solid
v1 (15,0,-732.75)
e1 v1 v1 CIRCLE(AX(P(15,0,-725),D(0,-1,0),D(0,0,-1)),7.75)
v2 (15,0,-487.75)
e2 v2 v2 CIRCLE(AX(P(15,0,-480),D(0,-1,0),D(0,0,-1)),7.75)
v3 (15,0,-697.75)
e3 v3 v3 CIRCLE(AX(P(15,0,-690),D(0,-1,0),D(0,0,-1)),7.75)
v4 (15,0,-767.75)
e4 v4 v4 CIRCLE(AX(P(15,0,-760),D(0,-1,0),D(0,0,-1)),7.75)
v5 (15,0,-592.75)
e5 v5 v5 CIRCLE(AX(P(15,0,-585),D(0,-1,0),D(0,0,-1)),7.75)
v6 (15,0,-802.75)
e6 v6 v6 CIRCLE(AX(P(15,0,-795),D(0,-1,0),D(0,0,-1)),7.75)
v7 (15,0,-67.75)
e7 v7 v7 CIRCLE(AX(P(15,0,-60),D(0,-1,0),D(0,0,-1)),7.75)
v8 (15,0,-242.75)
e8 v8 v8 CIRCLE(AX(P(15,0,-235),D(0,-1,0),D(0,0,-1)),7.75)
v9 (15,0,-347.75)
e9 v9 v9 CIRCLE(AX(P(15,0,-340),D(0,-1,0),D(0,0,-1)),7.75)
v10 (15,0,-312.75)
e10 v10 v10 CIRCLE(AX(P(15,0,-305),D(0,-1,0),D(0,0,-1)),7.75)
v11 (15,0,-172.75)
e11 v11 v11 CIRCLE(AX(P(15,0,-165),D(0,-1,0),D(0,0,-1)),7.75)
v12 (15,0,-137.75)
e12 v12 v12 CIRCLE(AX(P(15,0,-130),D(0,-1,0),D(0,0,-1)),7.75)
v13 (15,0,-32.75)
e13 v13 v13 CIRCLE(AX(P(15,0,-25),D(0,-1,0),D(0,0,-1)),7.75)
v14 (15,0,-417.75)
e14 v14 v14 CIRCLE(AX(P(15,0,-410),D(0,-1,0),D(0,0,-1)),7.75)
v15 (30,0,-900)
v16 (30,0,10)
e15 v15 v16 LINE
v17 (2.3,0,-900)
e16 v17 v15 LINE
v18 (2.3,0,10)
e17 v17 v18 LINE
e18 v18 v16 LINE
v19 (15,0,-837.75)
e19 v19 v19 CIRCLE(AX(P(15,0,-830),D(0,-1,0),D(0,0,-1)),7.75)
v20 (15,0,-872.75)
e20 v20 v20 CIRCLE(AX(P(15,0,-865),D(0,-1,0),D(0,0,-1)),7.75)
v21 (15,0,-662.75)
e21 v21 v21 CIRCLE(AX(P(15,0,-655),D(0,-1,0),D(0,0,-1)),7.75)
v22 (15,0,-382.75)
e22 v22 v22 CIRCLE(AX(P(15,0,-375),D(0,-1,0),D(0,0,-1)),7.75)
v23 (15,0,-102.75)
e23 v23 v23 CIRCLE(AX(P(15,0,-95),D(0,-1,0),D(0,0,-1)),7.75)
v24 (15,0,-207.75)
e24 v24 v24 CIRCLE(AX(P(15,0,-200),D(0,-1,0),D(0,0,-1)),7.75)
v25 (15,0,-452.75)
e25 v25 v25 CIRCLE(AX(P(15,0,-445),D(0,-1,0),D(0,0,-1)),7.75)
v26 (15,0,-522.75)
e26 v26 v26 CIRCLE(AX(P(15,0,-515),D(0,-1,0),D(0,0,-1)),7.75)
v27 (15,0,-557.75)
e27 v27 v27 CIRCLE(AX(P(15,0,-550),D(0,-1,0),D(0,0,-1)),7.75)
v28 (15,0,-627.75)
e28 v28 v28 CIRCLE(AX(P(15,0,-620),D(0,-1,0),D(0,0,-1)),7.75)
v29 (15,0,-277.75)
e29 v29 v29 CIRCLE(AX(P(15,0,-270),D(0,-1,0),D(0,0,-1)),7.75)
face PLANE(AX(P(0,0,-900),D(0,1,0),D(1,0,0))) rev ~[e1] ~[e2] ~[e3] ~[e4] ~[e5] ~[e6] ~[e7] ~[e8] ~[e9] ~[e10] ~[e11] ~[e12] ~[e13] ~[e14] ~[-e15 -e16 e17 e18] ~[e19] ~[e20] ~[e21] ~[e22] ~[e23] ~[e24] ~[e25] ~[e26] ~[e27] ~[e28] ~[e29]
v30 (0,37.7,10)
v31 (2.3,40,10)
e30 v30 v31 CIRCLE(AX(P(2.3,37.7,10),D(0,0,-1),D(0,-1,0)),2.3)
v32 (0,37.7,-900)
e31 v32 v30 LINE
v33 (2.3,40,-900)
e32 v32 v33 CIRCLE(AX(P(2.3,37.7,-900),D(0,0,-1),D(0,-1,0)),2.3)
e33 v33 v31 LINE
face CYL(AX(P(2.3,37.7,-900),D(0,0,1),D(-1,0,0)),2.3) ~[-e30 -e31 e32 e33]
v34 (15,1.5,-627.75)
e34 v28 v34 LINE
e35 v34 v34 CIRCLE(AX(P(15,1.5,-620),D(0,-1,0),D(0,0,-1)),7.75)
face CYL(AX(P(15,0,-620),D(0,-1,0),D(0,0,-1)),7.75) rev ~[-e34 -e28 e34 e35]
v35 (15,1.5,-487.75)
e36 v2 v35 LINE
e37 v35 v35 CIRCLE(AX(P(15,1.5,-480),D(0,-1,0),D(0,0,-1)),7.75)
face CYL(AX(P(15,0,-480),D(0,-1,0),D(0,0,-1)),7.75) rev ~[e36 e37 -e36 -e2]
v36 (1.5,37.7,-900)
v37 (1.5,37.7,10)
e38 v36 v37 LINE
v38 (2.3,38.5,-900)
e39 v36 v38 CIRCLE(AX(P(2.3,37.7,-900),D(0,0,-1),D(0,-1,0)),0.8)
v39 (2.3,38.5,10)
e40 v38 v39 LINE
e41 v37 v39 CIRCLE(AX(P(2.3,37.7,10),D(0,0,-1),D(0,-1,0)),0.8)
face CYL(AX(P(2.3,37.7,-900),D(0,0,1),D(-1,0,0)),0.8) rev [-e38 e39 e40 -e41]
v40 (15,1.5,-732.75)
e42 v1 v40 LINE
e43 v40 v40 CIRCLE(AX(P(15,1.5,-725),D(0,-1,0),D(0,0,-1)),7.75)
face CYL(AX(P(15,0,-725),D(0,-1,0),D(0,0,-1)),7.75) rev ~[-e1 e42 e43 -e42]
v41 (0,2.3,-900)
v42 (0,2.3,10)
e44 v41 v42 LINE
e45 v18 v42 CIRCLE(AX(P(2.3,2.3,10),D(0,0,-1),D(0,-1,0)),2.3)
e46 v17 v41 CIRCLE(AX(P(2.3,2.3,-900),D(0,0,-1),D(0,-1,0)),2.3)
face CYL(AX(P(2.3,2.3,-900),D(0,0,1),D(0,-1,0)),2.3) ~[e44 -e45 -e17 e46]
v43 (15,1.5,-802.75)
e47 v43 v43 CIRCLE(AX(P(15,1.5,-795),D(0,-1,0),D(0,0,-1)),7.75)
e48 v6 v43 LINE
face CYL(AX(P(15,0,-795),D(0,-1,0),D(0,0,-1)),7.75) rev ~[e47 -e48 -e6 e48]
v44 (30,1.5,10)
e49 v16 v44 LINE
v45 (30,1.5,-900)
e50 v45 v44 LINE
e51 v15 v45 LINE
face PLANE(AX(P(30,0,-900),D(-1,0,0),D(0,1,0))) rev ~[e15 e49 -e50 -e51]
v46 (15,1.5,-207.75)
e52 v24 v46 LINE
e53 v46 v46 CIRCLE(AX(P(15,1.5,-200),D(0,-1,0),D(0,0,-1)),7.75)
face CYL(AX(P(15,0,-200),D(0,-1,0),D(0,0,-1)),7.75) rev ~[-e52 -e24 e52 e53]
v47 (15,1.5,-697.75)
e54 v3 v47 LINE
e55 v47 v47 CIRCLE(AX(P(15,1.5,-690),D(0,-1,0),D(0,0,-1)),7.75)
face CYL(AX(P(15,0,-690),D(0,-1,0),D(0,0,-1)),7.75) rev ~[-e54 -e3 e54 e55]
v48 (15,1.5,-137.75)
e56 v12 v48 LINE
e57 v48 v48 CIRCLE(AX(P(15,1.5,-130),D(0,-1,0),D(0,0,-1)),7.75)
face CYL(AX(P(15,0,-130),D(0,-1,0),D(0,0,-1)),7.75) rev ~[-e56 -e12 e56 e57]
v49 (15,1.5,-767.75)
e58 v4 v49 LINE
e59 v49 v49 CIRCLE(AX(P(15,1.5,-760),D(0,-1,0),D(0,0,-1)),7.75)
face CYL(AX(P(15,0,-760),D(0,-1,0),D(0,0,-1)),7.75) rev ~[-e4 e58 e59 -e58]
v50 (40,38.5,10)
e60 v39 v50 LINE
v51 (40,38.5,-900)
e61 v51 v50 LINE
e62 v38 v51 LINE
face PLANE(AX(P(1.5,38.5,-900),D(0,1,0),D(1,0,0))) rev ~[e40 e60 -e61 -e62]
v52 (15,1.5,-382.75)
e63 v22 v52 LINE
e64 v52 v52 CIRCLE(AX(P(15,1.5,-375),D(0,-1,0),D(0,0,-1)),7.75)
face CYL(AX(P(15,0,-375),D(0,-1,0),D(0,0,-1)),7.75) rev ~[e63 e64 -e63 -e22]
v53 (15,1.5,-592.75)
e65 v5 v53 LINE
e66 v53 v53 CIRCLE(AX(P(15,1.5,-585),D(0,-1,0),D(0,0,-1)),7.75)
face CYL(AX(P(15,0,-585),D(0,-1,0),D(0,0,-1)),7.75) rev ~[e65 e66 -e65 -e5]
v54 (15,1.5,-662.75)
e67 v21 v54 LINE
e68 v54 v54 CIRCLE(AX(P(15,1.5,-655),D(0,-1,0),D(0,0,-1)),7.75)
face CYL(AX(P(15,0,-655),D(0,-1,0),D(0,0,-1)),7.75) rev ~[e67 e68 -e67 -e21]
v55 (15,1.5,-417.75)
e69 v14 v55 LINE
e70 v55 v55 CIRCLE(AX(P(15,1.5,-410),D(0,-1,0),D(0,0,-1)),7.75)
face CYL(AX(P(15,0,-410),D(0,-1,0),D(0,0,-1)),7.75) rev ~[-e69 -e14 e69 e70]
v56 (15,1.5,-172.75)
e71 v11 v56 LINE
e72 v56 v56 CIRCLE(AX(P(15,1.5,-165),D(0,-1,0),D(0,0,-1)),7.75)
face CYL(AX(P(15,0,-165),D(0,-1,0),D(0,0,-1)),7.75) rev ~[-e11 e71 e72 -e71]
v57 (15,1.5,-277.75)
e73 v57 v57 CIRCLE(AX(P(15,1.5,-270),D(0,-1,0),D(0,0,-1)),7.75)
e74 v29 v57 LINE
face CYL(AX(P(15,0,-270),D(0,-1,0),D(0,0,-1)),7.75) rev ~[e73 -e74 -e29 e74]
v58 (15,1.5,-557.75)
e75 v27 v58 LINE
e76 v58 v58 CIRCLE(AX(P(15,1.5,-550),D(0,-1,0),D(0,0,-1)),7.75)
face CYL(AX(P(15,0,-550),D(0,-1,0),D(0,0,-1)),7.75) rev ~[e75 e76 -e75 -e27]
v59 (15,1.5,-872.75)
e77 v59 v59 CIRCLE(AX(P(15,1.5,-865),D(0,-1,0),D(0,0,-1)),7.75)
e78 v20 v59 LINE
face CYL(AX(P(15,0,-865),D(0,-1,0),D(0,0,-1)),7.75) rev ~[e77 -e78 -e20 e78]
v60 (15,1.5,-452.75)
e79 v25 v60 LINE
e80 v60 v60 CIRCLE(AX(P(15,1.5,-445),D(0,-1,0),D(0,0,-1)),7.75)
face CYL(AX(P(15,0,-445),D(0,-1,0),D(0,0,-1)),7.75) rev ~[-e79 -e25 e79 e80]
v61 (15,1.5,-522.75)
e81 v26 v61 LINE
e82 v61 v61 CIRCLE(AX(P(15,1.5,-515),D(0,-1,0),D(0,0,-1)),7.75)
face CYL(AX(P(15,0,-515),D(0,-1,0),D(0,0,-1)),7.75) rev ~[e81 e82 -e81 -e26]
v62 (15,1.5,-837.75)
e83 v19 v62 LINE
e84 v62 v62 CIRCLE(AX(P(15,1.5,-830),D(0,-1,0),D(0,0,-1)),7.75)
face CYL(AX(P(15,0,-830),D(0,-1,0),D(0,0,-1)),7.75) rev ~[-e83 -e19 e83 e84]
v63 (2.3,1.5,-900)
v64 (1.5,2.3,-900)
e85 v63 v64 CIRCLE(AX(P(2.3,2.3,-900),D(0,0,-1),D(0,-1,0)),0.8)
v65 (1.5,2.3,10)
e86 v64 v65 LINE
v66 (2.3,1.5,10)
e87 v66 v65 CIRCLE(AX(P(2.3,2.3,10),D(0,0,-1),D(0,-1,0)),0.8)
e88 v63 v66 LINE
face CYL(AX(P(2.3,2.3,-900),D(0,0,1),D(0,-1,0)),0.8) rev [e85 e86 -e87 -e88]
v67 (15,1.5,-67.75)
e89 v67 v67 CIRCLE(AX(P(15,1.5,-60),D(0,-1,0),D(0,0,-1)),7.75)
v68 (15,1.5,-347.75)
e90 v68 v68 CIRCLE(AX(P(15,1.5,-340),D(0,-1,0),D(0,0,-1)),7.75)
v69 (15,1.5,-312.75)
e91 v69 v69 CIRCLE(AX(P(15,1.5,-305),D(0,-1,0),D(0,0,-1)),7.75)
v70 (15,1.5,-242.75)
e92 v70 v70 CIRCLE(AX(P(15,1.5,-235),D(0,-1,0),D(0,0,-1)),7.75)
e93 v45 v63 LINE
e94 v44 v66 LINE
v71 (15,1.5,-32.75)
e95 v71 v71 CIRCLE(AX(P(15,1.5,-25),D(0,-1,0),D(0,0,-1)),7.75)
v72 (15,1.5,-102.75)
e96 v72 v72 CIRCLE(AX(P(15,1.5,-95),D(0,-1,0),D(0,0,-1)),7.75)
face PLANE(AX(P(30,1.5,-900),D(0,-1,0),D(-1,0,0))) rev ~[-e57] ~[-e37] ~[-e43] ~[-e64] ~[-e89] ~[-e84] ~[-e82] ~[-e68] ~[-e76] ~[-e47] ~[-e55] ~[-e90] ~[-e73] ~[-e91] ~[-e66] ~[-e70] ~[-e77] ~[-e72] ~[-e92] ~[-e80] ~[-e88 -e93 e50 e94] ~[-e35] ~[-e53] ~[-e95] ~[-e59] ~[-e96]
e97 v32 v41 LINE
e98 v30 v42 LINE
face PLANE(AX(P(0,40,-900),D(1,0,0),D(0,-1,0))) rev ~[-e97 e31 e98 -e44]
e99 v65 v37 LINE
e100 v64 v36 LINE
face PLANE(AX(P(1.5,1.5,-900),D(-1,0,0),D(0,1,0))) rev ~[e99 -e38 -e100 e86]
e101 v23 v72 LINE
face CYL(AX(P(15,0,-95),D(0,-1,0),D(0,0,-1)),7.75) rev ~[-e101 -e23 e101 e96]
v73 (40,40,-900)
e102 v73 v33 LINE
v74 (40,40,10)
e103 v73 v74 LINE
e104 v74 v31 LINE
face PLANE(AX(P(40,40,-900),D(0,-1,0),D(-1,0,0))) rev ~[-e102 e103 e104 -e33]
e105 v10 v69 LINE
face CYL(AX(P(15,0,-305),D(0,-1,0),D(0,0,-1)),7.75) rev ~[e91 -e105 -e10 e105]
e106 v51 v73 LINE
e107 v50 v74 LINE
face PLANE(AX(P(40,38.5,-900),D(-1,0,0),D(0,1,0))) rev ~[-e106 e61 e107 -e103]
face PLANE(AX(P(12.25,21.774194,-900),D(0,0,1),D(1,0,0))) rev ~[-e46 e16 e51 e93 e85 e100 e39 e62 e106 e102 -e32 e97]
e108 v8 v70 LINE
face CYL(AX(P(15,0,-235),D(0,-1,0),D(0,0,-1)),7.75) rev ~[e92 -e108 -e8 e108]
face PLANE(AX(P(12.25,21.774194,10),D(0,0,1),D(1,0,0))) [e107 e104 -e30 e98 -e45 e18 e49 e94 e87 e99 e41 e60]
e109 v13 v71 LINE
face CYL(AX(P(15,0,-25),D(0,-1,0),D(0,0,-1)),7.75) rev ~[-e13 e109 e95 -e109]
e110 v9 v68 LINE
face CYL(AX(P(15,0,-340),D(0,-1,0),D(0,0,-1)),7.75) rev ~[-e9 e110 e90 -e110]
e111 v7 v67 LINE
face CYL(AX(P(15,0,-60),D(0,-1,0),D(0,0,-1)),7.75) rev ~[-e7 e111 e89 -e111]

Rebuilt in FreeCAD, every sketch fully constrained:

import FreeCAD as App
import Part
import Sketcher
Q = App.Units.Quantity


def edges_at(feature, points):
    """Names of the edges that pass closest to the given points."""
    edges = feature.Shape.Edges
    near = lambda p: min(range(len(edges)), key=lambda i: edges[i].distToShape(Part.Vertex(*p))[0])
    return sorted({f"Edge{near(p) + 1}" for p in points})

doc = App.newDocument("Part")
body = doc.addObject("PartDesign::Body", "Body")

sketch1 = doc.addObject("Sketcher::SketchObject", "Sketch")
body.addObject(sketch1)
sketch1.AttachmentSupport = (doc.XY_Plane, [""])
sketch1.MapMode = "FlatFace"
sketch1.addGeometry([
    Part.LineSegment(App.Vector(0, 0, 0), App.Vector(30, 0, 0)),
    Part.LineSegment(App.Vector(30, 0, 0), App.Vector(30, 1.5, 0)),
    Part.LineSegment(App.Vector(30, 1.5, 0), App.Vector(1.5, 1.5, 0)),
    Part.LineSegment(App.Vector(1.5, 1.5, 0), App.Vector(1.5, 38.5, 0)),
    Part.LineSegment(App.Vector(1.5, 38.5, 0), App.Vector(40, 38.5, 0)),
    Part.LineSegment(App.Vector(40, 38.5, 0), App.Vector(40, 40, 0)),
    Part.LineSegment(App.Vector(40, 40, 0), App.Vector(0, 40, 0)),
    Part.LineSegment(App.Vector(0, 40, 0), App.Vector(0, 0, 0)),
], False)
sketch1.addConstraint([
    Sketcher.Constraint("Coincident", 0, 2, 1, 1),
    Sketcher.Constraint("Coincident", 1, 2, 2, 1),
    Sketcher.Constraint("Coincident", 2, 2, 3, 1),
    Sketcher.Constraint("Coincident", 3, 2, 4, 1),
    Sketcher.Constraint("Coincident", 4, 2, 5, 1),
    Sketcher.Constraint("Coincident", 5, 2, 6, 1),
    Sketcher.Constraint("Coincident", 6, 2, 7, 1),
    Sketcher.Constraint("Coincident", 7, 2, 0, 1),
    Sketcher.Constraint("Horizontal", 0),
    Sketcher.Constraint("Vertical", 1),
    Sketcher.Constraint("Horizontal", 2),
    Sketcher.Constraint("Vertical", 3),
    Sketcher.Constraint("Horizontal", 4),
    Sketcher.Constraint("Vertical", 5),
    Sketcher.Constraint("Horizontal", 6),
    Sketcher.Constraint("Vertical", 7),
    Sketcher.Constraint("Coincident", 7, 2, -1, 1),
    Sketcher.Constraint("Equal", 1, 5),
    Sketcher.Constraint("Equal", 6, 7),
    Sketcher.Constraint("DistanceX", 0, 1, 0, 2, Q("30 mm")),
    Sketcher.Constraint("DistanceX", 6, 2, 6, 1, Q("40 mm")),
    Sketcher.Constraint("DistanceY", 3, 1, 3, 2, Q("37 mm")),
    Sketcher.Constraint("DistanceX", 2, 2, 2, 1, Q("28.5 mm")),
])
pad1 = doc.addObject("PartDesign::Pad", "Pad")
body.addObject(pad1)
pad1.Profile = sketch1
pad1.Type = "TwoLengths"
pad1.Length = 10
pad1.Length2 = 900

sketch2 = doc.addObject("Sketcher::SketchObject", "Sketch001")
body.addObject(sketch2)
sketch2.AttachmentSupport = (doc.XZ_Plane, [""])
sketch2.MapMode = "FlatFace"
sketch2.addGeometry([
    Part.Circle(App.Vector(15, -25, 0), App.Vector(0, 0, 1), 8),
    Part.Circle(App.Vector(15, -60, 0), App.Vector(0, 0, 1), 8),
    Part.Circle(App.Vector(15, -95, 0), App.Vector(0, 0, 1), 8),
    Part.Circle(App.Vector(15, -130, 0), App.Vector(0, 0, 1), 8),
    Part.Circle(App.Vector(15, -165, 0), App.Vector(0, 0, 1), 8),
    Part.Circle(App.Vector(15, -200, 0), App.Vector(0, 0, 1), 8),
    Part.Circle(App.Vector(15, -235, 0), App.Vector(0, 0, 1), 8),
    Part.Circle(App.Vector(15, -270, 0), App.Vector(0, 0, 1), 8),
    Part.Circle(App.Vector(15, -305, 0), App.Vector(0, 0, 1), 8),
    Part.Circle(App.Vector(15, -340, 0), App.Vector(0, 0, 1), 8),
    Part.Circle(App.Vector(15, -375, 0), App.Vector(0, 0, 1), 8),
    Part.Circle(App.Vector(15, -410, 0), App.Vector(0, 0, 1), 8),
    Part.Circle(App.Vector(15, -445, 0), App.Vector(0, 0, 1), 8),
    Part.Circle(App.Vector(15, -480, 0), App.Vector(0, 0, 1), 8),
    Part.Circle(App.Vector(15, -515, 0), App.Vector(0, 0, 1), 8),
    Part.Circle(App.Vector(15, -550, 0), App.Vector(0, 0, 1), 8),
    Part.Circle(App.Vector(15, -585, 0), App.Vector(0, 0, 1), 8),
    Part.Circle(App.Vector(15, -620, 0), App.Vector(0, 0, 1), 8),
    Part.Circle(App.Vector(15, -655, 0), App.Vector(0, 0, 1), 8),
    Part.Circle(App.Vector(15, -690, 0), App.Vector(0, 0, 1), 8),
    Part.Circle(App.Vector(15, -725, 0), App.Vector(0, 0, 1), 8),
    Part.Circle(App.Vector(15, -760, 0), App.Vector(0, 0, 1), 8),
    Part.Circle(App.Vector(15, -795, 0), App.Vector(0, 0, 1), 8),
    Part.Circle(App.Vector(15, -830, 0), App.Vector(0, 0, 1), 8),
    Part.Circle(App.Vector(15, -865, 0), App.Vector(0, 0, 1), 8),
], False)
sketch2.addConstraint([
    Sketcher.Constraint("Equal", 0, 1),
    Sketcher.Constraint("Equal", 1, 2),
    Sketcher.Constraint("Equal", 2, 3),
    Sketcher.Constraint("Equal", 3, 4),
    Sketcher.Constraint("Equal", 4, 5),
    Sketcher.Constraint("Equal", 5, 6),
    Sketcher.Constraint("Equal", 6, 7),
    Sketcher.Constraint("Equal", 7, 8),
    Sketcher.Constraint("Equal", 8, 9),
    Sketcher.Constraint("Equal", 9, 10),
    Sketcher.Constraint("Equal", 10, 11),
    Sketcher.Constraint("Equal", 11, 12),
    Sketcher.Constraint("Equal", 12, 13),
    Sketcher.Constraint("Equal", 13, 14),
    Sketcher.Constraint("Equal", 14, 15),
    Sketcher.Constraint("Equal", 15, 16),
    Sketcher.Constraint("Equal", 16, 17),
    Sketcher.Constraint("Equal", 17, 18),
    Sketcher.Constraint("Equal", 18, 19),
    Sketcher.Constraint("Equal", 19, 20),
    Sketcher.Constraint("Equal", 20, 21),
    Sketcher.Constraint("Equal", 21, 22),
    Sketcher.Constraint("Equal", 22, 23),
    Sketcher.Constraint("Equal", 23, 24),
    Sketcher.Constraint("Vertical", 0, 3, 1, 3),
    Sketcher.Constraint("Vertical", 1, 3, 2, 3),
    Sketcher.Constraint("Vertical", 2, 3, 3, 3),
    Sketcher.Constraint("Vertical", 3, 3, 4, 3),
    Sketcher.Constraint("Vertical", 4, 3, 5, 3),
    Sketcher.Constraint("Vertical", 5, 3, 6, 3),
    Sketcher.Constraint("Vertical", 6, 3, 7, 3),
    Sketcher.Constraint("Vertical", 7, 3, 8, 3),
    Sketcher.Constraint("Vertical", 8, 3, 9, 3),
    Sketcher.Constraint("Vertical", 9, 3, 10, 3),
    Sketcher.Constraint("Vertical", 10, 3, 11, 3),
    Sketcher.Constraint("Vertical", 11, 3, 12, 3),
    Sketcher.Constraint("Vertical", 12, 3, 13, 3),
    Sketcher.Constraint("Vertical", 13, 3, 14, 3),
    Sketcher.Constraint("Vertical", 14, 3, 15, 3),
    Sketcher.Constraint("Vertical", 15, 3, 16, 3),
    Sketcher.Constraint("Vertical", 16, 3, 17, 3),
    Sketcher.Constraint("Vertical", 17, 3, 18, 3),
    Sketcher.Constraint("Vertical", 18, 3, 19, 3),
    Sketcher.Constraint("Vertical", 19, 3, 20, 3),
    Sketcher.Constraint("Vertical", 20, 3, 21, 3),
    Sketcher.Constraint("Vertical", 21, 3, 22, 3),
    Sketcher.Constraint("Vertical", 22, 3, 23, 3),
    Sketcher.Constraint("Vertical", 23, 3, 24, 3),
    Sketcher.Constraint("Diameter", 0, Q("15.5 mm")),
    Sketcher.Constraint("DistanceX", -1, 1, 0, 3, Q("15 mm")),
    Sketcher.Constraint("DistanceY", 0, 3, -1, 1, Q("25 mm")),
    Sketcher.Constraint("DistanceY", 1, 3, -1, 1, Q("60 mm")),
    Sketcher.Constraint("DistanceY", 2, 3, -1, 1, Q("95 mm")),
    Sketcher.Constraint("DistanceY", 3, 3, -1, 1, Q("130 mm")),
    Sketcher.Constraint("DistanceY", 4, 3, -1, 1, Q("165 mm")),
    Sketcher.Constraint("DistanceY", 5, 3, -1, 1, Q("200 mm")),
    Sketcher.Constraint("DistanceY", 6, 3, -1, 1, Q("235 mm")),
    Sketcher.Constraint("DistanceY", 7, 3, -1, 1, Q("270 mm")),
    Sketcher.Constraint("DistanceY", 8, 3, -1, 1, Q("305 mm")),
    Sketcher.Constraint("DistanceY", 9, 3, -1, 1, Q("340 mm")),
    Sketcher.Constraint("DistanceY", 10, 3, -1, 1, Q("375 mm")),
    Sketcher.Constraint("DistanceY", 11, 3, -1, 1, Q("410 mm")),
    Sketcher.Constraint("DistanceY", 12, 3, -1, 1, Q("445 mm")),
    Sketcher.Constraint("DistanceY", 13, 3, -1, 1, Q("480 mm")),
    Sketcher.Constraint("DistanceY", 14, 3, -1, 1, Q("515 mm")),
    Sketcher.Constraint("DistanceY", 15, 3, -1, 1, Q("550 mm")),
    Sketcher.Constraint("DistanceY", 16, 3, -1, 1, Q("585 mm")),
    Sketcher.Constraint("DistanceY", 17, 3, -1, 1, Q("620 mm")),
    Sketcher.Constraint("DistanceY", 18, 3, -1, 1, Q("655 mm")),
    Sketcher.Constraint("DistanceY", 19, 3, -1, 1, Q("690 mm")),
    Sketcher.Constraint("DistanceY", 20, 3, -1, 1, Q("725 mm")),
    Sketcher.Constraint("DistanceY", 21, 3, -1, 1, Q("760 mm")),
    Sketcher.Constraint("DistanceY", 22, 3, -1, 1, Q("795 mm")),
    Sketcher.Constraint("DistanceY", 23, 3, -1, 1, Q("830 mm")),
    Sketcher.Constraint("DistanceY", 24, 3, -1, 1, Q("865 mm")),
])
pocket1 = doc.addObject("PartDesign::Pocket", "Pocket")
body.addObject(pocket1)
pocket1.Profile = sketch2
pocket1.Length = 1.5
doc.recompute()

fillet = doc.addObject("PartDesign::Fillet", "Fillet")
body.addObject(fillet)
fillet.Base = (pocket1, edges_at(pocket1, [(0, 40, -445), (0, 0, -445)]))
fillet.Radius = 2.3
doc.recompute()

fillet2 = doc.addObject("PartDesign::Fillet", "Fillet001")
body.addObject(fillet2)
fillet2.Base = (fillet, edges_at(fillet, [(1.5, 38.5, -445), (1.5, 1.5, -445)]))
fillet2.Radius = 0.8

doc.recompute()
